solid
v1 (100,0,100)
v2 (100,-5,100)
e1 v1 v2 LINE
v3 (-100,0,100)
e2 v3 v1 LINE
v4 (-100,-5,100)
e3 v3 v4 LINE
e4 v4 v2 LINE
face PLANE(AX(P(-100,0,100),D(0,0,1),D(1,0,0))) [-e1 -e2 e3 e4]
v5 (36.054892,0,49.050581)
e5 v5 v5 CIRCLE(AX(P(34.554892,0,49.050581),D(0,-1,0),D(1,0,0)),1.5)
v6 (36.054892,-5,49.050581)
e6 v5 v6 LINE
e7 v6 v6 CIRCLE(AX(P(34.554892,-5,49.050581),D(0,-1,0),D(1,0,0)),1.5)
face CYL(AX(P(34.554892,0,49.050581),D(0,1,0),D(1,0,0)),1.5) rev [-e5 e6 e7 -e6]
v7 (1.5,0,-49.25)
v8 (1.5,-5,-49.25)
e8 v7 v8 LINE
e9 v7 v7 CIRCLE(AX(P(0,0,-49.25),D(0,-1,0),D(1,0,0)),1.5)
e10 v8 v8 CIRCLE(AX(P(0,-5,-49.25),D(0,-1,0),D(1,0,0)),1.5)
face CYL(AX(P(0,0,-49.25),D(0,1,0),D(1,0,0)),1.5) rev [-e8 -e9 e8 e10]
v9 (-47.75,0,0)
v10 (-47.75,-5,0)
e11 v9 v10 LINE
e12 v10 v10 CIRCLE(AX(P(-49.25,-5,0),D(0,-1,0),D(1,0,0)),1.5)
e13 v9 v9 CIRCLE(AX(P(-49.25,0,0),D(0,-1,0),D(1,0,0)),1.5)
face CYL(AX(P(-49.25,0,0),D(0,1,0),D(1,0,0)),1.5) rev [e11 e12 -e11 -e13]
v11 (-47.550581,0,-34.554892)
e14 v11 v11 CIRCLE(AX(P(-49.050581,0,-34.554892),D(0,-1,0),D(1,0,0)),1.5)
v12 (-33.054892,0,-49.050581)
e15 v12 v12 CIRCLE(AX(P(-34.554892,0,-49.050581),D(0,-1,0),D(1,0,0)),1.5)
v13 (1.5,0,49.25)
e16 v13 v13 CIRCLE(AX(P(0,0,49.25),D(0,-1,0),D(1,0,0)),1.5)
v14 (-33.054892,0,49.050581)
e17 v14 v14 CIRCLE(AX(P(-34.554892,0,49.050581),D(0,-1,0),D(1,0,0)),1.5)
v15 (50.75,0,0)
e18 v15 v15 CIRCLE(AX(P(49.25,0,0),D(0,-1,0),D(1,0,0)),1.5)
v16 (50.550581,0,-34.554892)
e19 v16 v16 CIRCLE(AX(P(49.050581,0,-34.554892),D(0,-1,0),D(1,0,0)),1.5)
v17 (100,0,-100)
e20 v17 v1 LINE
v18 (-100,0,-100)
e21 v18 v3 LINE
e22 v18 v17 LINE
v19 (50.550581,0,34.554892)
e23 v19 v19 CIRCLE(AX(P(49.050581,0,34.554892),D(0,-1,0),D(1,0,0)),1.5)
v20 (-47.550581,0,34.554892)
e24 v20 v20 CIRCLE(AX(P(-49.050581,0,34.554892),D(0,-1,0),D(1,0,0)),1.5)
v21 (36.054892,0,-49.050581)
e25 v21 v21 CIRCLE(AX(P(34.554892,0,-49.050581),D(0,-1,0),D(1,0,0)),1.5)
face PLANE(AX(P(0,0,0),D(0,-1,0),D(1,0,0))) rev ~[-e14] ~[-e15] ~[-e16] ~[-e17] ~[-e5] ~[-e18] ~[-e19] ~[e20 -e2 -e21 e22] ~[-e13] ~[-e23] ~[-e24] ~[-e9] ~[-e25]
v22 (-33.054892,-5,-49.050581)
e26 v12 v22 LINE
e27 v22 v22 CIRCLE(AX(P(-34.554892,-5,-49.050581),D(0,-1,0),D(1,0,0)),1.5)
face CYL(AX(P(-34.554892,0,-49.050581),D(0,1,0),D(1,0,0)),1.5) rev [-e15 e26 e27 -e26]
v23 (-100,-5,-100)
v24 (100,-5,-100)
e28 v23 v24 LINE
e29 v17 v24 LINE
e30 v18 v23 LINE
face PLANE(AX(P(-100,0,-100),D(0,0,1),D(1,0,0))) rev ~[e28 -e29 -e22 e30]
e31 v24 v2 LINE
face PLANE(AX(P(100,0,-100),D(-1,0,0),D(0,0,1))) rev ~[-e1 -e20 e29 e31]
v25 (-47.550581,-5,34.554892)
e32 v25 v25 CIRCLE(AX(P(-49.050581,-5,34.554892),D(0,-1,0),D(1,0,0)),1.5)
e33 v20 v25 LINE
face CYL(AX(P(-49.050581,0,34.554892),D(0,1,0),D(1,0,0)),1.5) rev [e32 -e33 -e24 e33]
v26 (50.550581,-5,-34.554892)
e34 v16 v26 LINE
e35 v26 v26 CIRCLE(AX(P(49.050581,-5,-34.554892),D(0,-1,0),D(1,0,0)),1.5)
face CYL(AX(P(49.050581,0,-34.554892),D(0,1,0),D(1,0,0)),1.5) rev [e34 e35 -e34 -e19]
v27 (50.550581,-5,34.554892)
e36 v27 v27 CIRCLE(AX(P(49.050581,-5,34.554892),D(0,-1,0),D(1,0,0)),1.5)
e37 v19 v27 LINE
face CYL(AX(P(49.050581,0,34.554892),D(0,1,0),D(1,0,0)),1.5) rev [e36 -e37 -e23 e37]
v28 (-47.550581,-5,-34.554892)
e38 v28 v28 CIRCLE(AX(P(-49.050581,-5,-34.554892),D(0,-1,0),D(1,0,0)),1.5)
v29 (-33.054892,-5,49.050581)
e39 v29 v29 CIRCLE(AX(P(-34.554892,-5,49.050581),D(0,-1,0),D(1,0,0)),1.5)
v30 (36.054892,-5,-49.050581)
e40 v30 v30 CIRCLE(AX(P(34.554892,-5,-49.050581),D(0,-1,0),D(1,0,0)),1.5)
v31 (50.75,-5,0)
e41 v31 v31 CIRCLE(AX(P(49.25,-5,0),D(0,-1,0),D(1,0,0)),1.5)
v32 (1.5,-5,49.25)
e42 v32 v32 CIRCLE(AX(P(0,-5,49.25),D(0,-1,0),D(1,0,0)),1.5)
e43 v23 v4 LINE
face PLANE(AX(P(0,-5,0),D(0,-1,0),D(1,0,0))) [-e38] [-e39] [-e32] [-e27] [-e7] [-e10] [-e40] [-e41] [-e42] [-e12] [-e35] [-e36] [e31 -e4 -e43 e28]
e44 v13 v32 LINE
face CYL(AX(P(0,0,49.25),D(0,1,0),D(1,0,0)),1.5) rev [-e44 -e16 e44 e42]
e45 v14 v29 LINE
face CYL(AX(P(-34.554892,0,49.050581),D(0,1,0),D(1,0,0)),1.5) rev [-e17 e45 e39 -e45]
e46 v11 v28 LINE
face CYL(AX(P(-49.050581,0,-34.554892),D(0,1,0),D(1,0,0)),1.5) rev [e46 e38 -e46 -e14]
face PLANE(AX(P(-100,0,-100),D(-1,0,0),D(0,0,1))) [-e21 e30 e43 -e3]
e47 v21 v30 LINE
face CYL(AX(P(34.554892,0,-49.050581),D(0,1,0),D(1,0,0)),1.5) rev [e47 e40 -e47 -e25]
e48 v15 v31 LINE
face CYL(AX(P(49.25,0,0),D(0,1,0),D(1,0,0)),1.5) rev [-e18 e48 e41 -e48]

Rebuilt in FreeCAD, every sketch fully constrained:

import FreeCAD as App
import Part
import Sketcher

V = App.Vector


def add_polygon(sketch, points):
    """Adds a closed chain of lines whose ends are joined by coincident constraints."""
    first, n = sketch.GeometryCount, len(points)
    for a, b in zip(points, points[1:] + points[:1]):
        sketch.addGeometry(Part.LineSegment(App.Vector(*a, 0), App.Vector(*b, 0)), False)
    for i in range(n):
        sketch.addConstraint(Sketcher.Constraint("Coincident", first + i, 2, first + (i + 1) % n, 1))

doc = App.newDocument("Part")
params = doc.addObject("Spreadsheet::Sheet", "Params")
for row, (alias, value) in enumerate([
    ("sketch1_diameter", "3 mm"),
    ("sketch1_width", "200 mm"),
    ("pad1_length", "5 mm"),
], start=1):
    params.set(f"A{row}", alias)
    params.set(f"B{row}", "=" + value)
    params.setAlias(f"B{row}", alias)

body = doc.addObject("PartDesign::Body", "Body")

# Sketch on XZ plane
sketch1 = body.newObject("Sketcher::SketchObject", "Sketch")
sketch1.AttachmentSupport = (doc.getObject("XZ_Plane"), [""])
sketch1.MapMode = "FlatFace"
add_polygon(sketch1, [(-100, 100), (-100, -100), (100, -100), (100, 100)])  # lines 0-3
sketch1.addGeometry(Part.Circle(V(-34.6, -49.1, 0), V(0, 0, 1), 1.5), False)  # 4
sketch1.addGeometry(Part.Circle(V(-49.1, -34.6, 0), V(0, 0, 1), 1.5), False)  # 5
sketch1.addGeometry(Part.Circle(V(0, -49.2, 0), V(0, 0, 1), 1.5), False)  # 6
sketch1.addGeometry(Part.Circle(V(34.6, -49.1, 0), V(0, 0, 1), 1.5), False)  # 7
sketch1.addGeometry(Part.Circle(V(49.1, -34.6, 0), V(0, 0, 1), 1.5), False)  # 8
sketch1.addGeometry(Part.Circle(V(-49.2, 0, 0), V(0, 0, 1), 1.5), False)  # 9
sketch1.addGeometry(Part.Circle(V(-49.1, 34.6, 0), V(0, 0, 1), 1.5), False)  # 10
sketch1.addGeometry(Part.Circle(V(-34.6, 49.1, 0), V(0, 0, 1), 1.5), False)  # 11
sketch1.addGeometry(Part.Circle(V(49.2, 0, 0), V(0, 0, 1), 1.5), False)  # 12
sketch1.addGeometry(Part.Circle(V(0, 49.2, 0), V(0, 0, 1), 1.5), False)  # 13
sketch1.addGeometry(Part.Circle(V(49.1, 34.6, 0), V(0, 0, 1), 1.5), False)  # 14
sketch1.addGeometry(Part.Circle(V(34.6, 49.1, 0), V(0, 0, 1), 1.5), False)  # 15
sketch1.addConstraint(Sketcher.Constraint("Vertical", 0))
sketch1.addConstraint(Sketcher.Constraint("Horizontal", 1))
sketch1.addConstraint(Sketcher.Constraint("Vertical", 2))
sketch1.addConstraint(Sketcher.Constraint("Horizontal", 3))
sketch1.addConstraint(Sketcher.Constraint("Equal", 4, 5))
sketch1.addConstraint(Sketcher.Constraint("Equal", 5, 6))
sketch1.addConstraint(Sketcher.Constraint("Equal", 6, 7))
sketch1.addConstraint(Sketcher.Constraint("Equal", 7, 8))
sketch1.addConstraint(Sketcher.Constraint("Equal", 8, 9))
sketch1.addConstraint(Sketcher.Constraint("Equal", 9, 10))
sketch1.addConstraint(Sketcher.Constraint("Equal", 10, 11))
sketch1.addConstraint(Sketcher.Constraint("Equal", 11, 12))
sketch1.addConstraint(Sketcher.Constraint("Equal", 12, 13))
sketch1.addConstraint(Sketcher.Constraint("Equal", 13, 14))
sketch1.addConstraint(Sketcher.Constraint("Equal", 14, 15))
sketch1.addConstraint(Sketcher.Constraint("Symmetric", 8, 3, 10, 3, -1, 1))
sketch1.addConstraint(Sketcher.Constraint("Symmetric", 7, 3, 11, 3, -1, 1))
sketch1.addConstraint(Sketcher.Constraint("Symmetric", 9, 3, 12, 3, -1, 1))
sketch1.addConstraint(Sketcher.Constraint("Symmetric", 6, 3, 13, 3, -1, 1))
sketch1.addConstraint(Sketcher.Constraint("Symmetric", 5, 3, 14, 3, -1, 1))
sketch1.addConstraint(Sketcher.Constraint("Symmetric", 4, 3, 15, 3, -1, 1))
sketch1.addConstraint(Sketcher.Constraint("Symmetric", 0, 2, 2, 2, -1, 1))
sketch1.addConstraint(Sketcher.Constraint("Symmetric", 4, 3, 7, 3, -2))
sketch1.addConstraint(Sketcher.Constraint("Symmetric", 5, 3, 8, 3, -2))
sketch1.addConstraint(Sketcher.Constraint("PointOnObject", 6, 3, -2))
sketch1.addConstraint(Sketcher.Constraint("PointOnObject", 9, 3, -1))
sketch1.addConstraint(Sketcher.Constraint("Equal", 3, 0))
sketch1.addConstraint(Sketcher.Constraint("Diameter", 4, 3.0))
sketch1.addConstraint(Sketcher.Constraint("DistanceX", 1, 1, 1, 2, 200.0))
sketch1.addConstraint(Sketcher.Constraint("DistanceY", 6, 3, -1, 1, 49.25))
sketch1.addConstraint(Sketcher.Constraint("DistanceX", 9, 3, -1, 1, 49.25))
sketch1.addConstraint(Sketcher.Constraint("DistanceY", 4, 3, -1, 1, 49.050581))
sketch1.addConstraint(Sketcher.Constraint("DistanceX", 5, 3, -1, 1, 49.050581))
sketch1.addConstraint(Sketcher.Constraint("DistanceX", 5, 3, 4, 3, 14.495689))
sketch1.addConstraint(Sketcher.Constraint("DistanceY", 4, 3, 5, 3, 14.495689))
sketch1.setExpression("Constraints[31]", "Params.sketch1_diameter")
sketch1.setExpression("Constraints[32]", "Params.sketch1_width")
pad1 = body.newObject("PartDesign::Pad", "Pad")
pad1.Profile = sketch1
pad1.setExpression("Length", "Params.pad1_length")

doc.recompute()
